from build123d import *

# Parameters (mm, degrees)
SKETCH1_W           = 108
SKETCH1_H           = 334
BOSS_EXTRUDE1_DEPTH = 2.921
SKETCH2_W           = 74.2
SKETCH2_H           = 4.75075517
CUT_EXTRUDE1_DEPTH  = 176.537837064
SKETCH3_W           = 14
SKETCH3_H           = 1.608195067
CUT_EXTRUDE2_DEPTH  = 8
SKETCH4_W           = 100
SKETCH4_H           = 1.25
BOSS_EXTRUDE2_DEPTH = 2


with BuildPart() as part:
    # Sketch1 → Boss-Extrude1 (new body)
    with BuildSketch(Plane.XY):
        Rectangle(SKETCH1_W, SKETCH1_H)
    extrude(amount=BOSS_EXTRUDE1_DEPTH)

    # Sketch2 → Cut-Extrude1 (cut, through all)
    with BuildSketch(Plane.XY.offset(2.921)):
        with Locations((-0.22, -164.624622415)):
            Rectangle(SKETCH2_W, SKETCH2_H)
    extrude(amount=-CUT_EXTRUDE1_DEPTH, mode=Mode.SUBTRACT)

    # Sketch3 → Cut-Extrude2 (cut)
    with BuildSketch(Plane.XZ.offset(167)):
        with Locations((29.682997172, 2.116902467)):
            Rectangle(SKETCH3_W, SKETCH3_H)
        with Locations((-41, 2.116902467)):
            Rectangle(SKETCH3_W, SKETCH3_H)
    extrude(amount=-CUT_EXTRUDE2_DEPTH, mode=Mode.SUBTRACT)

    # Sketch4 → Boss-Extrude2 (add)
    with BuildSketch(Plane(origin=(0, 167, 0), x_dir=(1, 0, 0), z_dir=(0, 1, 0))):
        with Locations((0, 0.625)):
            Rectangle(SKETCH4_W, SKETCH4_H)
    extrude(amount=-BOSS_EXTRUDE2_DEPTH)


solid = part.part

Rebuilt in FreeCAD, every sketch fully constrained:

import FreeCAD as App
import Part
import Sketcher

V = App.Vector
Q = App.Units.Quantity


def add_polygon(sketch, points):
    """Adds a closed chain of lines whose ends are joined by coincident constraints."""
    first, n = sketch.GeometryCount, len(points)
    for a, b in zip(points, points[1:] + points[:1]):
        sketch.addGeometry(Part.LineSegment(App.Vector(*a, 0), App.Vector(*b, 0)), False)
    for i in range(n):
        sketch.addConstraint(Sketcher.Constraint("Coincident", first + i, 2, first + (i + 1) % n, 1))

doc = App.newDocument("Part")
body = doc.addObject("PartDesign::Body", "Body")

# Sketch on XY plane
sketch1 = body.newObject("Sketcher::SketchObject", "Sketch")
sketch1.AttachmentSupport = (doc.getObject("XY_Plane"), [""])
sketch1.MapMode = "FlatFace"
add_polygon(sketch1, [(-54, 167), (-54, -167), (54, -167), (54, 167)])  # lines 0-3
sketch1.addConstraint([
    Sketcher.Constraint("Vertical", 0),
    Sketcher.Constraint("Horizontal", 1),
    Sketcher.Constraint("Vertical", 2),
    Sketcher.Constraint("Horizontal", 3),
    Sketcher.Constraint("Symmetric", 0, 2, 2, 2, -1, 1),
    Sketcher.Constraint("DistanceX", 1, 1, 1, 2, Q("108 mm")),
    Sketcher.Constraint("DistanceY", 0, 2, 0, 1, Q("334 mm")),
])
pad1 = body.newObject("PartDesign::Pad", "Pad")
pad1.Profile = sketch1
pad1.Length = 2.921

# Sketch on XY plane
sketch2 = body.newObject("Sketcher::SketchObject", "Sketch001")
sketch2.AttachmentSupport = (doc.getObject("XY_Plane"), [""])
sketch2.MapMode = "FlatFace"
sketch2.AttachmentOffset = App.Placement(V(0, 0, 2.921), App.Rotation())
add_polygon(sketch2, [(-37.3, -162.2), (-37.3, -167), (36.9, -167), (36.9, -162.2)])  # lines 0-3
sketch2.addConstraint([
    Sketcher.Constraint("Vertical", 0),
    Sketcher.Constraint("Horizontal", 1),
    Sketcher.Constraint("Vertical", 2),
    Sketcher.Constraint("Horizontal", 3),
    Sketcher.Constraint("DistanceX", 1, 1, 1, 2, Q("74.2 mm")),
    Sketcher.Constraint("DistanceY", 0, 2, -1, 1, Q("167 mm")),
    Sketcher.Constraint("DistanceX", 0, 2, -1, 1, Q("37.32 mm")),
    Sketcher.Constraint("DistanceY", 0, 2, 0, 1, Q("4.750755 mm")),
])
pocket1 = body.newObject("PartDesign::Pocket", "Pocket")
pocket1.Profile = sketch2
pocket1.Type = "ThroughAll"

# Sketch on XZ plane
sketch3 = body.newObject("Sketcher::SketchObject", "Sketch002")
sketch3.AttachmentSupport = (doc.getObject("XZ_Plane"), [""])
sketch3.MapMode = "FlatFace"
sketch3.AttachmentOffset = App.Placement(V(0, 0, 167), App.Rotation())
add_polygon(sketch3, [(22.7, 2.9), (22.7, 1.3), (36.7, 1.3), (36.7, 2.9)])  # lines 0-3
add_polygon(sketch3, [(-48, 2.9), (-48, 1.3), (-34, 1.3), (-34, 2.9)])  # lines 4-7
sketch3.addConstraint([
    Sketcher.Constraint("Vertical", 0),
    Sketcher.Constraint("Horizontal", 1),
    Sketcher.Constraint("Vertical", 2),
    Sketcher.Constraint("Horizontal", 3),
    Sketcher.Constraint("Vertical", 4),
    Sketcher.Constraint("Horizontal", 5),
    Sketcher.Constraint("Vertical", 6),
    Sketcher.Constraint("Horizontal", 7),
    Sketcher.Constraint("Horizontal", 1, 2, 4, 2),
    Sketcher.Constraint("Horizontal", 3, 2, 6, 2),
    Sketcher.Constraint("Equal", 3, 5),
    Sketcher.Constraint("DistanceX", 1, 1, 1, 2, Q("14 mm")),
    Sketcher.Constraint("DistanceX", 4, 2, -1, 1, Q("48 mm")),
    Sketcher.Constraint("DistanceY", -1, 1, 2, 2, Q("2.921 mm")),
    Sketcher.Constraint("DistanceY", 0, 2, 0, 1, Q("1.608195 mm")),
    Sketcher.Constraint("DistanceX", -1, 1, 0, 2, Q("22.682997 mm")),
])
pocket2 = body.newObject("PartDesign::Pocket", "Pocket001")
pocket2.Profile = sketch3
pocket2.Length = 8

# Sketch on XZ plane
sketch4 = body.newObject("Sketcher::SketchObject", "Sketch003")
sketch4.AttachmentSupport = (doc.getObject("XZ_Plane"), [""])
sketch4.MapMode = "FlatFace"
sketch4.AttachmentOffset = App.Placement(V(0, 0, -167), App.Rotation())
add_polygon(sketch4, [(-50, -1.2), (-50, 0), (50, 0), (50, -1.2)])  # lines 0-3
sketch4.addConstraint([
    Sketcher.Constraint("Vertical", 0),
    Sketcher.Constraint("Horizontal", 1),
    Sketcher.Constraint("Vertical", 2),
    Sketcher.Constraint("Horizontal", 3),
    Sketcher.Constraint("Symmetric", 0, 2, 1, 2, -1, 1),
    Sketcher.Constraint("DistanceX", 1, 1, 1, 2, Q("100 mm")),
    Sketcher.Constraint("DistanceY", 0, 1, 0, 2, Q("1.25 mm")),
])
pad2 = body.newObject("PartDesign::Pad", "Pad001")
pad2.Profile = sketch4
pad2.Length = 2

doc.recompute()
